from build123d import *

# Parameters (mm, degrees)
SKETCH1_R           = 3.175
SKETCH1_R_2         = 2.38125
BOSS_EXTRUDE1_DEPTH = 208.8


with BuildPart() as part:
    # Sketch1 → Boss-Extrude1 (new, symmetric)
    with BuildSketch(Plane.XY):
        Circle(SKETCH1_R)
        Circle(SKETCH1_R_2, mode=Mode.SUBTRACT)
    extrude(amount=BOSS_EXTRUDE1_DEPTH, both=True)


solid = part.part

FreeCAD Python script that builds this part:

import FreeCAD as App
import Part
import Sketcher

V = App.Vector
Q = App.Units.Quantity

doc = App.newDocument("Part")
body = doc.addObject("PartDesign::Body", "Body")

# Sketch on XY plane
sketch1 = body.newObject("Sketcher::SketchObject", "Sketch")
sketch1.AttachmentSupport = (doc.getObject("XY_Plane"), [""])
sketch1.MapMode = "FlatFace"
sketch1.addGeometry(Part.Circle(V(0, 0, 0), V(0, 0, 1), 3.2), False)
sketch1.addGeometry(Part.Circle(V(0, 0, 0), V(0, 0, 1), 2.4), False)
sketch1.addConstraint(Sketcher.Constraint("Coincident", 0, 3, -1, 1))
sketch1.addConstraint(Sketcher.Constraint("Coincident", 1, 3, -1, 1))
sketch1.addConstraint(Sketcher.Constraint("Diameter", 0, Q("0.25 in")))
sketch1.addConstraint(Sketcher.Constraint("Diameter", 1, Q("0.1875 in")))
pad1 = body.newObject("PartDesign::Pad", "Pad")
pad1.Profile = sketch1
pad1.Length = 417.6
pad1.Midplane = True

doc.recompute()
